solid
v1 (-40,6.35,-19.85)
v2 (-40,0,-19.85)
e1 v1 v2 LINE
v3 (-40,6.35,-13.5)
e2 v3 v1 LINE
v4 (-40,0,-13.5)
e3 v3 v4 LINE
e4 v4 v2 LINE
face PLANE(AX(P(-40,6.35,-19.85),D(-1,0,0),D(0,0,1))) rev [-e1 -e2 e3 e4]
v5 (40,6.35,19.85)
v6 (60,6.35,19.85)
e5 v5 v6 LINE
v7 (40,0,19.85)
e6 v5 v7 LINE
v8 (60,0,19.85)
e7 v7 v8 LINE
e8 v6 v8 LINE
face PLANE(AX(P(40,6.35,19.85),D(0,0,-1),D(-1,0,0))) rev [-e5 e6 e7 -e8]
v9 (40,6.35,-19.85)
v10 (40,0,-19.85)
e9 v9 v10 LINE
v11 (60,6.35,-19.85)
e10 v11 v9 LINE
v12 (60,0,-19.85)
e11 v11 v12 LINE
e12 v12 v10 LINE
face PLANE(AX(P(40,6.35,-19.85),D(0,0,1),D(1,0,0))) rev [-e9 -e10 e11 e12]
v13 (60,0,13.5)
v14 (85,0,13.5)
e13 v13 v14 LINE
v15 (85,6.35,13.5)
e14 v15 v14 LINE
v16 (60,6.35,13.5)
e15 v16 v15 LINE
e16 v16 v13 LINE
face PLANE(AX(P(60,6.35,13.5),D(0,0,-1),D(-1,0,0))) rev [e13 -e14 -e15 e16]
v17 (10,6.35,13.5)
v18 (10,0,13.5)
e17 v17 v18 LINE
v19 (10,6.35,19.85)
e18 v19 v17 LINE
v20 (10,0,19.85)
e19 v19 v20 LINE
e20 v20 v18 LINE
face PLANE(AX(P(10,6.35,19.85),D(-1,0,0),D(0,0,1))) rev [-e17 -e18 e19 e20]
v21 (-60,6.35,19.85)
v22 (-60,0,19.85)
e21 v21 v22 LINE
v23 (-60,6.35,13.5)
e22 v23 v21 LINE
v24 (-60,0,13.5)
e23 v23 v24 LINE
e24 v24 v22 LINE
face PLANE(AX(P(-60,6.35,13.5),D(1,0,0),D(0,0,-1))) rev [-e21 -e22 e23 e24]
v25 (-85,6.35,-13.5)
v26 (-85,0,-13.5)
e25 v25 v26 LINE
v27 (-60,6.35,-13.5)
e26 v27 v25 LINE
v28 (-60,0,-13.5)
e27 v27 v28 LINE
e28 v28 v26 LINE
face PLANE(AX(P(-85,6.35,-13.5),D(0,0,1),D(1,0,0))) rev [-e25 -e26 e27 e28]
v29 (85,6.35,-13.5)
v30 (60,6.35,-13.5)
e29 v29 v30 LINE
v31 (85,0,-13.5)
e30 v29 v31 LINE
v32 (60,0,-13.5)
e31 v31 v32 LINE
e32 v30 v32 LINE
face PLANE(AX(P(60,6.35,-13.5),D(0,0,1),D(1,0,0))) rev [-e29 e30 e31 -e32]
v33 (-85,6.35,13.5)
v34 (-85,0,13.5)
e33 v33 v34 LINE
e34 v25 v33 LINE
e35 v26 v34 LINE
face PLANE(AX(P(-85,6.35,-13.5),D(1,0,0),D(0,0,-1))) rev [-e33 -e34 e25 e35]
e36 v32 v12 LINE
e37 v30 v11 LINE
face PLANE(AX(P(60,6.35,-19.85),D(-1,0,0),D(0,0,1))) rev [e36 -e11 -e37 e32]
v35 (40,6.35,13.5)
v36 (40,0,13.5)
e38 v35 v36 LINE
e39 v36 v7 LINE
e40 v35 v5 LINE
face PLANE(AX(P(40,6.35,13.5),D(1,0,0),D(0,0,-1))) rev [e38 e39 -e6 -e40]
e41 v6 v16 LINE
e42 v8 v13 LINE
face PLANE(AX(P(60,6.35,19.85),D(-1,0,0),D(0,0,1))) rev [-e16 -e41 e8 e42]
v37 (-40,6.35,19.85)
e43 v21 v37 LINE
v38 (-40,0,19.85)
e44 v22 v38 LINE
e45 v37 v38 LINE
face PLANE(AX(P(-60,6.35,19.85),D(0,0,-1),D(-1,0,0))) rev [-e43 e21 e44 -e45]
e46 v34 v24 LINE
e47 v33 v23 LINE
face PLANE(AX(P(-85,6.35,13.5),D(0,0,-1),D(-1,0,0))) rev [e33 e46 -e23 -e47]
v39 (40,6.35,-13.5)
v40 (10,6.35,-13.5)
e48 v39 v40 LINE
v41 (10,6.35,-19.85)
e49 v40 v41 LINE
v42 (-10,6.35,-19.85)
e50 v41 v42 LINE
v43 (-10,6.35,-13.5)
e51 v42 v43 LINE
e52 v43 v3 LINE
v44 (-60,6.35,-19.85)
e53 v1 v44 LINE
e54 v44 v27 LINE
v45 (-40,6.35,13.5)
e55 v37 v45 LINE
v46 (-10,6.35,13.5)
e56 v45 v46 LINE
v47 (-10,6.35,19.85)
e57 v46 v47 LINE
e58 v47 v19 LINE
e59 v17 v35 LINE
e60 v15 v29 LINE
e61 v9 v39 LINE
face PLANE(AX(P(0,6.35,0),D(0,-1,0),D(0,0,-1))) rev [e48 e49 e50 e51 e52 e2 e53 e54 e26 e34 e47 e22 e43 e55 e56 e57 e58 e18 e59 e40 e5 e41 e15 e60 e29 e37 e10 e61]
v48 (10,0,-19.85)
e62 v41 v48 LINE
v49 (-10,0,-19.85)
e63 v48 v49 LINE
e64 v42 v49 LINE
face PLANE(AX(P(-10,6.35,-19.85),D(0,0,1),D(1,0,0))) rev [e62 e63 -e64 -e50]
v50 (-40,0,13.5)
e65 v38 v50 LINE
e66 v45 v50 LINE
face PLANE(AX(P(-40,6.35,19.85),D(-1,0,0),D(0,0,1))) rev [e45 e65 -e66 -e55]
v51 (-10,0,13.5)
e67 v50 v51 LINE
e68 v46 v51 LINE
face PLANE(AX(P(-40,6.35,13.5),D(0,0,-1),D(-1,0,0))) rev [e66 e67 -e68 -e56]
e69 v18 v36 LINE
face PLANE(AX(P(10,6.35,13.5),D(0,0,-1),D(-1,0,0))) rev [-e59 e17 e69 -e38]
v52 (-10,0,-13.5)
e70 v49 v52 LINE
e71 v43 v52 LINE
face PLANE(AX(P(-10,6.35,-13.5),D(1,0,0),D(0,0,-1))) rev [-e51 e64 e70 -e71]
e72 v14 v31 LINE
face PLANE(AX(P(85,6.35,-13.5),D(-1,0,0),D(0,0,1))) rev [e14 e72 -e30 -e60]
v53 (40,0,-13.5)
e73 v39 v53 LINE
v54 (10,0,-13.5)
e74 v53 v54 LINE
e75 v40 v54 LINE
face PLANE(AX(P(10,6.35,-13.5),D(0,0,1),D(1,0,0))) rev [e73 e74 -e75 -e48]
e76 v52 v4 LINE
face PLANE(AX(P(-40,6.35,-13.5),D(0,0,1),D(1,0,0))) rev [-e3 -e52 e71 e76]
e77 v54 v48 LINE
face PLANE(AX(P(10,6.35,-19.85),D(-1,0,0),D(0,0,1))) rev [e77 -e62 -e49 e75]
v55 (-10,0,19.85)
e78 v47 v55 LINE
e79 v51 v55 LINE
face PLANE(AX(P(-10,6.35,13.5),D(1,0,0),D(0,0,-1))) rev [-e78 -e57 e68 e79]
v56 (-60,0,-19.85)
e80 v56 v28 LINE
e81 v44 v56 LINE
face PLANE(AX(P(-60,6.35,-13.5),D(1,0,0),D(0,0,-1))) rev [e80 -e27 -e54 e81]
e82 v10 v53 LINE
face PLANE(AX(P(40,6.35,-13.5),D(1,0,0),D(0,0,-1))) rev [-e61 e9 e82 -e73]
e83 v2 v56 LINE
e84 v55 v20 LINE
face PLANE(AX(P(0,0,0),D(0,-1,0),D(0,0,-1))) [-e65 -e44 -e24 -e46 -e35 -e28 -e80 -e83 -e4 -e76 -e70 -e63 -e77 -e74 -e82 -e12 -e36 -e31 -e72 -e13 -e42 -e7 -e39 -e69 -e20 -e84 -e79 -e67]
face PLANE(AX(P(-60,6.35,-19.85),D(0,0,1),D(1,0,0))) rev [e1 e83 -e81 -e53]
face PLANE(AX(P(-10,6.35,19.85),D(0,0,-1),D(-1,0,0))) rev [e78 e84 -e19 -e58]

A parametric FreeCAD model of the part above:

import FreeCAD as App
import Part
import Sketcher


def add_polygon(sketch, points):
    """Adds a closed chain of lines whose ends are joined by coincident constraints."""
    first, n = sketch.GeometryCount, len(points)
    for a, b in zip(points, points[1:] + points[:1]):
        sketch.addGeometry(Part.LineSegment(App.Vector(*a, 0), App.Vector(*b, 0)), False)
    for i in range(n):
        sketch.addConstraint(Sketcher.Constraint("Coincident", first + i, 2, first + (i + 1) % n, 1))

doc = App.newDocument("Part")
params = doc.addObject("Spreadsheet::Sheet", "Params")
for row, (alias, value) in enumerate([
    ("sketch1_width", "25 mm"),
    ("sketch1_width2", "20 mm"),
    ("sketch1_width3", "30 mm"),
    ("sketch1_height", "27 mm"),
    ("sketch1_height2", "6.35 mm"),
    ("pad1_length", "6.35 mm"),
], start=1):
    params.set(f"A{row}", alias)
    params.set(f"B{row}", "=" + value)
    params.setAlias(f"B{row}", alias)

body = doc.addObject("PartDesign::Body", "Body")

# Sketch on XZ plane
sketch1 = doc.addObject("Sketcher::SketchObject", "Sketch")
body.addObject(sketch1)
sketch1.AttachmentSupport = (doc.XZ_Plane, [""])
sketch1.MapMode = "FlatFace"
add_polygon(sketch1, [(-60, -13.5), (-85, -13.5), (-85, 13.5), (-60, 13.5), (-60, 19.85), (-40, 19.85), (-40, 13.5), (-10, 13.5), (-10, 19.85), (10, 19.85), (10, 13.5), (40, 13.5), (40, 19.85), (60, 19.85), (60, 13.5), (85, 13.5), (85, -13.5), (60, -13.5), (60, -19.85), (40, -19.85), (40, -13.5), (10, -13.5), (10, -19.85), (-10, -19.85), (-10, -13.5), (-40, -13.5), (-40, -19.85), (-60, -19.85)])  # lines 0-27
sketch1.addConstraint([
    Sketcher.Constraint("Horizontal", 0),
    Sketcher.Constraint("Vertical", 1),
    Sketcher.Constraint("Horizontal", 2),
    Sketcher.Constraint("Vertical", 3),
    Sketcher.Constraint("Horizontal", 4),
    Sketcher.Constraint("Vertical", 5),
    Sketcher.Constraint("Horizontal", 6),
    Sketcher.Constraint("Vertical", 7),
    Sketcher.Constraint("Horizontal", 8),
    Sketcher.Constraint("Vertical", 9),
    Sketcher.Constraint("Horizontal", 10),
    Sketcher.Constraint("Vertical", 11),
    Sketcher.Constraint("Horizontal", 12),
    Sketcher.Constraint("Vertical", 13),
    Sketcher.Constraint("Horizontal", 14),
    Sketcher.Constraint("Vertical", 15),
    Sketcher.Constraint("Horizontal", 16),
    Sketcher.Constraint("Vertical", 17),
    Sketcher.Constraint("Horizontal", 18),
    Sketcher.Constraint("Vertical", 19),
    Sketcher.Constraint("Horizontal", 20),
    Sketcher.Constraint("Vertical", 21),
    Sketcher.Constraint("Horizontal", 22),
    Sketcher.Constraint("Vertical", 23),
    Sketcher.Constraint("Horizontal", 24),
    Sketcher.Constraint("Vertical", 25),
    Sketcher.Constraint("Horizontal", 26),
    Sketcher.Constraint("Vertical", 27),
    Sketcher.Constraint("Symmetric", 0, 2, 14, 2, -1, 1),
    Sketcher.Constraint("Symmetric", 2, 2, 16, 2, -1, 1),
    Sketcher.Constraint("Symmetric", 4, 2, 18, 2, -1, 1),
    Sketcher.Constraint("Symmetric", 6, 2, 20, 2, -1, 1),
    Sketcher.Constraint("Symmetric", 8, 2, 22, 2, -1, 1),
    Sketcher.Constraint("Symmetric", 10, 2, 24, 2, -1, 1),
    Sketcher.Constraint("Symmetric", 12, 2, 26, 2, -1, 1),
    Sketcher.Constraint("Symmetric", 6, 2, 9, 2, -2),
    Sketcher.Constraint("Symmetric", 4, 2, 11, 2, -2),
    Sketcher.Constraint("Symmetric", 2, 2, 13, 2, -2),
    Sketcher.Constraint("Horizontal", 2, 2, 5, 2),
    Sketcher.Constraint("Horizontal", 4, 2, 7, 2),
    Sketcher.Constraint("Equal", 4, 8),
    Sketcher.Constraint("DistanceX", 0, 2, 0, 1, 25.0),
    Sketcher.Constraint("DistanceX", 4, 1, 4, 2, 20.0),
    Sketcher.Constraint("DistanceX", 6, 1, 6, 2, 30.0),
    Sketcher.Constraint("DistanceY", 1, 1, 1, 2, 27.0),
    Sketcher.Constraint("DistanceY", 3, 1, 3, 2, 6.35),
])
sketch1.setExpression("Constraints[69]", "Params.sketch1_width")
sketch1.setExpression("Constraints[70]", "Params.sketch1_width2")
sketch1.setExpression("Constraints[71]", "Params.sketch1_width3")
sketch1.setExpression("Constraints[72]", "Params.sketch1_height")
sketch1.setExpression("Constraints[73]", "Params.sketch1_height2")
pad1 = doc.addObject("PartDesign::Pad", "Pad")
body.addObject(pad1)
pad1.Profile = sketch1
pad1.setExpression("Length", "Params.pad1_length")
pad1.Reversed = True

doc.recompute()
